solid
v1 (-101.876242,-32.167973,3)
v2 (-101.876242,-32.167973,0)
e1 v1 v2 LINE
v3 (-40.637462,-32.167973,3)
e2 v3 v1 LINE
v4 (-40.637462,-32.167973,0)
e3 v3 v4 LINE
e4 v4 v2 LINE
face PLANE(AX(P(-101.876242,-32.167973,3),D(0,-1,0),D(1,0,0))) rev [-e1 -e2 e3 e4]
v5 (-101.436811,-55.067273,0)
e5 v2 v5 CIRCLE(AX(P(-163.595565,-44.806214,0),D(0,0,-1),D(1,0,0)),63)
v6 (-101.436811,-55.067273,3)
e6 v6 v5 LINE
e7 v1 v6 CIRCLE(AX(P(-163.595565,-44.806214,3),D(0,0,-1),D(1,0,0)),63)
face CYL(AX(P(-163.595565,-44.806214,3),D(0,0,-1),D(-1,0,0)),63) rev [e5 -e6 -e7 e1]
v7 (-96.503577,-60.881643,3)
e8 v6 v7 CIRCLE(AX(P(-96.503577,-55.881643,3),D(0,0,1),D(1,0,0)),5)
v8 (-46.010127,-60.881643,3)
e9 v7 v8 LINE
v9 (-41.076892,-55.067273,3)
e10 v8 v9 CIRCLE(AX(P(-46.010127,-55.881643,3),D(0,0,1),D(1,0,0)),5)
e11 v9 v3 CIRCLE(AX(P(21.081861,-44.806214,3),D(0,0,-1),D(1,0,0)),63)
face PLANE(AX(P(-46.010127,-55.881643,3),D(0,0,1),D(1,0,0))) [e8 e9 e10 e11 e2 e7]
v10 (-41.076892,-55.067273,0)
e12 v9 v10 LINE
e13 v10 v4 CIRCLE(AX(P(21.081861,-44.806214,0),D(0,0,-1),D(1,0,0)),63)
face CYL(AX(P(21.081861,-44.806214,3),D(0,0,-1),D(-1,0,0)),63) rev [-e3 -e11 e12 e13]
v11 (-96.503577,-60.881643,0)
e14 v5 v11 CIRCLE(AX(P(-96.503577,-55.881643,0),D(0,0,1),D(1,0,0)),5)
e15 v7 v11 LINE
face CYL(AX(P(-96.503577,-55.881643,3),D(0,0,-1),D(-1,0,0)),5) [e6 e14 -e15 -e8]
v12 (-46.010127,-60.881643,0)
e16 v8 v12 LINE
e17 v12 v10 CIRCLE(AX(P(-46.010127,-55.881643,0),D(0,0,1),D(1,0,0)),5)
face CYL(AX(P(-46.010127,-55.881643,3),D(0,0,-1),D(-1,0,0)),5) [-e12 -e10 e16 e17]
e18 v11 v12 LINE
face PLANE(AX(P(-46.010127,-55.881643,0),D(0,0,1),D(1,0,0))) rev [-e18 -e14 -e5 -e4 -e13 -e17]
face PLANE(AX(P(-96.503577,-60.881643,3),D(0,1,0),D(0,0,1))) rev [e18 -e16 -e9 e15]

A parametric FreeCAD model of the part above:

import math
import FreeCAD as App
import Part
import Sketcher
from FreeCAD import Vector
Q = App.Units.Quantity

doc = App.newDocument("Part")
body = doc.addObject("PartDesign::Body", "Body")

# Sketch on XY plane
sketch1 = doc.addObject("Sketcher::SketchObject", "Sketch")
body.addObject(sketch1)
sketch1.AttachmentSupport = (doc.XY_Plane, [""])
sketch1.MapMode = "FlatFace"
sketch1.addGeometry([
    Part.LineSegment(Vector(-97, -61, 0), Vector(-46, -61, 0)),  # 0
    Part.ArcOfCircle(Part.Circle(Vector(-46, -56, 0), Vector(0, 0, 1), 5), math.radians(-90), math.radians(9)),  # 1
    Part.ArcOfCircle(Part.Circle(Vector(21, -45, 0), Vector(0, 0, 1), 63), math.radians(168), math.radians(189)),  # 2
    Part.LineSegment(Vector(-41, -32, 0), Vector(-102, -32, 0)),  # 3
    Part.ArcOfCircle(Part.Circle(Vector(-164, -45, 0), Vector(0, 0, 1), 63), math.radians(-9), math.radians(12)),  # 4
    Part.ArcOfCircle(Part.Circle(Vector(-97, -56, 0), Vector(0, 0, 1), 5), math.radians(171), math.radians(270)),  # 5
], False)
sketch1.addConstraint([
    Sketcher.Constraint("Tangent", 0, 2, 1, 1),
    Sketcher.Constraint("Tangent", 1, 2, 2, 2),
    Sketcher.Constraint("Coincident", 2, 1, 3, 1),
    Sketcher.Constraint("Coincident", 3, 2, 4, 2),
    Sketcher.Constraint("Tangent", 4, 1, 5, 1),
    Sketcher.Constraint("Tangent", 5, 2, 0, 1),
    Sketcher.Constraint("Horizontal", 0),
    Sketcher.Constraint("Horizontal", 3),
    Sketcher.Constraint("Equal", 2, 4),
    Sketcher.Constraint("Equal", 1, 5),
    Sketcher.Constraint("Horizontal", 2, 3, 4, 3),
    Sketcher.Constraint("Radius", 1, Q("5 mm")),
    Sketcher.Constraint("Radius", 2, Q("63 mm")),
    Sketcher.Constraint("DistanceX", 0, 1, 0, 2, Q("50.49345 mm")),
    Sketcher.Constraint("DistanceX", 3, 2, 3, 1, Q("61.23878 mm")),
    Sketcher.Constraint("DistanceY", 1, 2, 2, 1, Q("22.8993 mm")),
    Sketcher.Constraint("DistanceX", -1, 1, 2, 3, Q("21.081861 mm")),
    Sketcher.Constraint("DistanceY", 1, 3, -1, 1, Q("55.881643 mm")),
])
pad1 = doc.addObject("PartDesign::Pad", "Pad")
body.addObject(pad1)
pad1.Profile = sketch1
pad1.Length = 3

doc.recompute()
